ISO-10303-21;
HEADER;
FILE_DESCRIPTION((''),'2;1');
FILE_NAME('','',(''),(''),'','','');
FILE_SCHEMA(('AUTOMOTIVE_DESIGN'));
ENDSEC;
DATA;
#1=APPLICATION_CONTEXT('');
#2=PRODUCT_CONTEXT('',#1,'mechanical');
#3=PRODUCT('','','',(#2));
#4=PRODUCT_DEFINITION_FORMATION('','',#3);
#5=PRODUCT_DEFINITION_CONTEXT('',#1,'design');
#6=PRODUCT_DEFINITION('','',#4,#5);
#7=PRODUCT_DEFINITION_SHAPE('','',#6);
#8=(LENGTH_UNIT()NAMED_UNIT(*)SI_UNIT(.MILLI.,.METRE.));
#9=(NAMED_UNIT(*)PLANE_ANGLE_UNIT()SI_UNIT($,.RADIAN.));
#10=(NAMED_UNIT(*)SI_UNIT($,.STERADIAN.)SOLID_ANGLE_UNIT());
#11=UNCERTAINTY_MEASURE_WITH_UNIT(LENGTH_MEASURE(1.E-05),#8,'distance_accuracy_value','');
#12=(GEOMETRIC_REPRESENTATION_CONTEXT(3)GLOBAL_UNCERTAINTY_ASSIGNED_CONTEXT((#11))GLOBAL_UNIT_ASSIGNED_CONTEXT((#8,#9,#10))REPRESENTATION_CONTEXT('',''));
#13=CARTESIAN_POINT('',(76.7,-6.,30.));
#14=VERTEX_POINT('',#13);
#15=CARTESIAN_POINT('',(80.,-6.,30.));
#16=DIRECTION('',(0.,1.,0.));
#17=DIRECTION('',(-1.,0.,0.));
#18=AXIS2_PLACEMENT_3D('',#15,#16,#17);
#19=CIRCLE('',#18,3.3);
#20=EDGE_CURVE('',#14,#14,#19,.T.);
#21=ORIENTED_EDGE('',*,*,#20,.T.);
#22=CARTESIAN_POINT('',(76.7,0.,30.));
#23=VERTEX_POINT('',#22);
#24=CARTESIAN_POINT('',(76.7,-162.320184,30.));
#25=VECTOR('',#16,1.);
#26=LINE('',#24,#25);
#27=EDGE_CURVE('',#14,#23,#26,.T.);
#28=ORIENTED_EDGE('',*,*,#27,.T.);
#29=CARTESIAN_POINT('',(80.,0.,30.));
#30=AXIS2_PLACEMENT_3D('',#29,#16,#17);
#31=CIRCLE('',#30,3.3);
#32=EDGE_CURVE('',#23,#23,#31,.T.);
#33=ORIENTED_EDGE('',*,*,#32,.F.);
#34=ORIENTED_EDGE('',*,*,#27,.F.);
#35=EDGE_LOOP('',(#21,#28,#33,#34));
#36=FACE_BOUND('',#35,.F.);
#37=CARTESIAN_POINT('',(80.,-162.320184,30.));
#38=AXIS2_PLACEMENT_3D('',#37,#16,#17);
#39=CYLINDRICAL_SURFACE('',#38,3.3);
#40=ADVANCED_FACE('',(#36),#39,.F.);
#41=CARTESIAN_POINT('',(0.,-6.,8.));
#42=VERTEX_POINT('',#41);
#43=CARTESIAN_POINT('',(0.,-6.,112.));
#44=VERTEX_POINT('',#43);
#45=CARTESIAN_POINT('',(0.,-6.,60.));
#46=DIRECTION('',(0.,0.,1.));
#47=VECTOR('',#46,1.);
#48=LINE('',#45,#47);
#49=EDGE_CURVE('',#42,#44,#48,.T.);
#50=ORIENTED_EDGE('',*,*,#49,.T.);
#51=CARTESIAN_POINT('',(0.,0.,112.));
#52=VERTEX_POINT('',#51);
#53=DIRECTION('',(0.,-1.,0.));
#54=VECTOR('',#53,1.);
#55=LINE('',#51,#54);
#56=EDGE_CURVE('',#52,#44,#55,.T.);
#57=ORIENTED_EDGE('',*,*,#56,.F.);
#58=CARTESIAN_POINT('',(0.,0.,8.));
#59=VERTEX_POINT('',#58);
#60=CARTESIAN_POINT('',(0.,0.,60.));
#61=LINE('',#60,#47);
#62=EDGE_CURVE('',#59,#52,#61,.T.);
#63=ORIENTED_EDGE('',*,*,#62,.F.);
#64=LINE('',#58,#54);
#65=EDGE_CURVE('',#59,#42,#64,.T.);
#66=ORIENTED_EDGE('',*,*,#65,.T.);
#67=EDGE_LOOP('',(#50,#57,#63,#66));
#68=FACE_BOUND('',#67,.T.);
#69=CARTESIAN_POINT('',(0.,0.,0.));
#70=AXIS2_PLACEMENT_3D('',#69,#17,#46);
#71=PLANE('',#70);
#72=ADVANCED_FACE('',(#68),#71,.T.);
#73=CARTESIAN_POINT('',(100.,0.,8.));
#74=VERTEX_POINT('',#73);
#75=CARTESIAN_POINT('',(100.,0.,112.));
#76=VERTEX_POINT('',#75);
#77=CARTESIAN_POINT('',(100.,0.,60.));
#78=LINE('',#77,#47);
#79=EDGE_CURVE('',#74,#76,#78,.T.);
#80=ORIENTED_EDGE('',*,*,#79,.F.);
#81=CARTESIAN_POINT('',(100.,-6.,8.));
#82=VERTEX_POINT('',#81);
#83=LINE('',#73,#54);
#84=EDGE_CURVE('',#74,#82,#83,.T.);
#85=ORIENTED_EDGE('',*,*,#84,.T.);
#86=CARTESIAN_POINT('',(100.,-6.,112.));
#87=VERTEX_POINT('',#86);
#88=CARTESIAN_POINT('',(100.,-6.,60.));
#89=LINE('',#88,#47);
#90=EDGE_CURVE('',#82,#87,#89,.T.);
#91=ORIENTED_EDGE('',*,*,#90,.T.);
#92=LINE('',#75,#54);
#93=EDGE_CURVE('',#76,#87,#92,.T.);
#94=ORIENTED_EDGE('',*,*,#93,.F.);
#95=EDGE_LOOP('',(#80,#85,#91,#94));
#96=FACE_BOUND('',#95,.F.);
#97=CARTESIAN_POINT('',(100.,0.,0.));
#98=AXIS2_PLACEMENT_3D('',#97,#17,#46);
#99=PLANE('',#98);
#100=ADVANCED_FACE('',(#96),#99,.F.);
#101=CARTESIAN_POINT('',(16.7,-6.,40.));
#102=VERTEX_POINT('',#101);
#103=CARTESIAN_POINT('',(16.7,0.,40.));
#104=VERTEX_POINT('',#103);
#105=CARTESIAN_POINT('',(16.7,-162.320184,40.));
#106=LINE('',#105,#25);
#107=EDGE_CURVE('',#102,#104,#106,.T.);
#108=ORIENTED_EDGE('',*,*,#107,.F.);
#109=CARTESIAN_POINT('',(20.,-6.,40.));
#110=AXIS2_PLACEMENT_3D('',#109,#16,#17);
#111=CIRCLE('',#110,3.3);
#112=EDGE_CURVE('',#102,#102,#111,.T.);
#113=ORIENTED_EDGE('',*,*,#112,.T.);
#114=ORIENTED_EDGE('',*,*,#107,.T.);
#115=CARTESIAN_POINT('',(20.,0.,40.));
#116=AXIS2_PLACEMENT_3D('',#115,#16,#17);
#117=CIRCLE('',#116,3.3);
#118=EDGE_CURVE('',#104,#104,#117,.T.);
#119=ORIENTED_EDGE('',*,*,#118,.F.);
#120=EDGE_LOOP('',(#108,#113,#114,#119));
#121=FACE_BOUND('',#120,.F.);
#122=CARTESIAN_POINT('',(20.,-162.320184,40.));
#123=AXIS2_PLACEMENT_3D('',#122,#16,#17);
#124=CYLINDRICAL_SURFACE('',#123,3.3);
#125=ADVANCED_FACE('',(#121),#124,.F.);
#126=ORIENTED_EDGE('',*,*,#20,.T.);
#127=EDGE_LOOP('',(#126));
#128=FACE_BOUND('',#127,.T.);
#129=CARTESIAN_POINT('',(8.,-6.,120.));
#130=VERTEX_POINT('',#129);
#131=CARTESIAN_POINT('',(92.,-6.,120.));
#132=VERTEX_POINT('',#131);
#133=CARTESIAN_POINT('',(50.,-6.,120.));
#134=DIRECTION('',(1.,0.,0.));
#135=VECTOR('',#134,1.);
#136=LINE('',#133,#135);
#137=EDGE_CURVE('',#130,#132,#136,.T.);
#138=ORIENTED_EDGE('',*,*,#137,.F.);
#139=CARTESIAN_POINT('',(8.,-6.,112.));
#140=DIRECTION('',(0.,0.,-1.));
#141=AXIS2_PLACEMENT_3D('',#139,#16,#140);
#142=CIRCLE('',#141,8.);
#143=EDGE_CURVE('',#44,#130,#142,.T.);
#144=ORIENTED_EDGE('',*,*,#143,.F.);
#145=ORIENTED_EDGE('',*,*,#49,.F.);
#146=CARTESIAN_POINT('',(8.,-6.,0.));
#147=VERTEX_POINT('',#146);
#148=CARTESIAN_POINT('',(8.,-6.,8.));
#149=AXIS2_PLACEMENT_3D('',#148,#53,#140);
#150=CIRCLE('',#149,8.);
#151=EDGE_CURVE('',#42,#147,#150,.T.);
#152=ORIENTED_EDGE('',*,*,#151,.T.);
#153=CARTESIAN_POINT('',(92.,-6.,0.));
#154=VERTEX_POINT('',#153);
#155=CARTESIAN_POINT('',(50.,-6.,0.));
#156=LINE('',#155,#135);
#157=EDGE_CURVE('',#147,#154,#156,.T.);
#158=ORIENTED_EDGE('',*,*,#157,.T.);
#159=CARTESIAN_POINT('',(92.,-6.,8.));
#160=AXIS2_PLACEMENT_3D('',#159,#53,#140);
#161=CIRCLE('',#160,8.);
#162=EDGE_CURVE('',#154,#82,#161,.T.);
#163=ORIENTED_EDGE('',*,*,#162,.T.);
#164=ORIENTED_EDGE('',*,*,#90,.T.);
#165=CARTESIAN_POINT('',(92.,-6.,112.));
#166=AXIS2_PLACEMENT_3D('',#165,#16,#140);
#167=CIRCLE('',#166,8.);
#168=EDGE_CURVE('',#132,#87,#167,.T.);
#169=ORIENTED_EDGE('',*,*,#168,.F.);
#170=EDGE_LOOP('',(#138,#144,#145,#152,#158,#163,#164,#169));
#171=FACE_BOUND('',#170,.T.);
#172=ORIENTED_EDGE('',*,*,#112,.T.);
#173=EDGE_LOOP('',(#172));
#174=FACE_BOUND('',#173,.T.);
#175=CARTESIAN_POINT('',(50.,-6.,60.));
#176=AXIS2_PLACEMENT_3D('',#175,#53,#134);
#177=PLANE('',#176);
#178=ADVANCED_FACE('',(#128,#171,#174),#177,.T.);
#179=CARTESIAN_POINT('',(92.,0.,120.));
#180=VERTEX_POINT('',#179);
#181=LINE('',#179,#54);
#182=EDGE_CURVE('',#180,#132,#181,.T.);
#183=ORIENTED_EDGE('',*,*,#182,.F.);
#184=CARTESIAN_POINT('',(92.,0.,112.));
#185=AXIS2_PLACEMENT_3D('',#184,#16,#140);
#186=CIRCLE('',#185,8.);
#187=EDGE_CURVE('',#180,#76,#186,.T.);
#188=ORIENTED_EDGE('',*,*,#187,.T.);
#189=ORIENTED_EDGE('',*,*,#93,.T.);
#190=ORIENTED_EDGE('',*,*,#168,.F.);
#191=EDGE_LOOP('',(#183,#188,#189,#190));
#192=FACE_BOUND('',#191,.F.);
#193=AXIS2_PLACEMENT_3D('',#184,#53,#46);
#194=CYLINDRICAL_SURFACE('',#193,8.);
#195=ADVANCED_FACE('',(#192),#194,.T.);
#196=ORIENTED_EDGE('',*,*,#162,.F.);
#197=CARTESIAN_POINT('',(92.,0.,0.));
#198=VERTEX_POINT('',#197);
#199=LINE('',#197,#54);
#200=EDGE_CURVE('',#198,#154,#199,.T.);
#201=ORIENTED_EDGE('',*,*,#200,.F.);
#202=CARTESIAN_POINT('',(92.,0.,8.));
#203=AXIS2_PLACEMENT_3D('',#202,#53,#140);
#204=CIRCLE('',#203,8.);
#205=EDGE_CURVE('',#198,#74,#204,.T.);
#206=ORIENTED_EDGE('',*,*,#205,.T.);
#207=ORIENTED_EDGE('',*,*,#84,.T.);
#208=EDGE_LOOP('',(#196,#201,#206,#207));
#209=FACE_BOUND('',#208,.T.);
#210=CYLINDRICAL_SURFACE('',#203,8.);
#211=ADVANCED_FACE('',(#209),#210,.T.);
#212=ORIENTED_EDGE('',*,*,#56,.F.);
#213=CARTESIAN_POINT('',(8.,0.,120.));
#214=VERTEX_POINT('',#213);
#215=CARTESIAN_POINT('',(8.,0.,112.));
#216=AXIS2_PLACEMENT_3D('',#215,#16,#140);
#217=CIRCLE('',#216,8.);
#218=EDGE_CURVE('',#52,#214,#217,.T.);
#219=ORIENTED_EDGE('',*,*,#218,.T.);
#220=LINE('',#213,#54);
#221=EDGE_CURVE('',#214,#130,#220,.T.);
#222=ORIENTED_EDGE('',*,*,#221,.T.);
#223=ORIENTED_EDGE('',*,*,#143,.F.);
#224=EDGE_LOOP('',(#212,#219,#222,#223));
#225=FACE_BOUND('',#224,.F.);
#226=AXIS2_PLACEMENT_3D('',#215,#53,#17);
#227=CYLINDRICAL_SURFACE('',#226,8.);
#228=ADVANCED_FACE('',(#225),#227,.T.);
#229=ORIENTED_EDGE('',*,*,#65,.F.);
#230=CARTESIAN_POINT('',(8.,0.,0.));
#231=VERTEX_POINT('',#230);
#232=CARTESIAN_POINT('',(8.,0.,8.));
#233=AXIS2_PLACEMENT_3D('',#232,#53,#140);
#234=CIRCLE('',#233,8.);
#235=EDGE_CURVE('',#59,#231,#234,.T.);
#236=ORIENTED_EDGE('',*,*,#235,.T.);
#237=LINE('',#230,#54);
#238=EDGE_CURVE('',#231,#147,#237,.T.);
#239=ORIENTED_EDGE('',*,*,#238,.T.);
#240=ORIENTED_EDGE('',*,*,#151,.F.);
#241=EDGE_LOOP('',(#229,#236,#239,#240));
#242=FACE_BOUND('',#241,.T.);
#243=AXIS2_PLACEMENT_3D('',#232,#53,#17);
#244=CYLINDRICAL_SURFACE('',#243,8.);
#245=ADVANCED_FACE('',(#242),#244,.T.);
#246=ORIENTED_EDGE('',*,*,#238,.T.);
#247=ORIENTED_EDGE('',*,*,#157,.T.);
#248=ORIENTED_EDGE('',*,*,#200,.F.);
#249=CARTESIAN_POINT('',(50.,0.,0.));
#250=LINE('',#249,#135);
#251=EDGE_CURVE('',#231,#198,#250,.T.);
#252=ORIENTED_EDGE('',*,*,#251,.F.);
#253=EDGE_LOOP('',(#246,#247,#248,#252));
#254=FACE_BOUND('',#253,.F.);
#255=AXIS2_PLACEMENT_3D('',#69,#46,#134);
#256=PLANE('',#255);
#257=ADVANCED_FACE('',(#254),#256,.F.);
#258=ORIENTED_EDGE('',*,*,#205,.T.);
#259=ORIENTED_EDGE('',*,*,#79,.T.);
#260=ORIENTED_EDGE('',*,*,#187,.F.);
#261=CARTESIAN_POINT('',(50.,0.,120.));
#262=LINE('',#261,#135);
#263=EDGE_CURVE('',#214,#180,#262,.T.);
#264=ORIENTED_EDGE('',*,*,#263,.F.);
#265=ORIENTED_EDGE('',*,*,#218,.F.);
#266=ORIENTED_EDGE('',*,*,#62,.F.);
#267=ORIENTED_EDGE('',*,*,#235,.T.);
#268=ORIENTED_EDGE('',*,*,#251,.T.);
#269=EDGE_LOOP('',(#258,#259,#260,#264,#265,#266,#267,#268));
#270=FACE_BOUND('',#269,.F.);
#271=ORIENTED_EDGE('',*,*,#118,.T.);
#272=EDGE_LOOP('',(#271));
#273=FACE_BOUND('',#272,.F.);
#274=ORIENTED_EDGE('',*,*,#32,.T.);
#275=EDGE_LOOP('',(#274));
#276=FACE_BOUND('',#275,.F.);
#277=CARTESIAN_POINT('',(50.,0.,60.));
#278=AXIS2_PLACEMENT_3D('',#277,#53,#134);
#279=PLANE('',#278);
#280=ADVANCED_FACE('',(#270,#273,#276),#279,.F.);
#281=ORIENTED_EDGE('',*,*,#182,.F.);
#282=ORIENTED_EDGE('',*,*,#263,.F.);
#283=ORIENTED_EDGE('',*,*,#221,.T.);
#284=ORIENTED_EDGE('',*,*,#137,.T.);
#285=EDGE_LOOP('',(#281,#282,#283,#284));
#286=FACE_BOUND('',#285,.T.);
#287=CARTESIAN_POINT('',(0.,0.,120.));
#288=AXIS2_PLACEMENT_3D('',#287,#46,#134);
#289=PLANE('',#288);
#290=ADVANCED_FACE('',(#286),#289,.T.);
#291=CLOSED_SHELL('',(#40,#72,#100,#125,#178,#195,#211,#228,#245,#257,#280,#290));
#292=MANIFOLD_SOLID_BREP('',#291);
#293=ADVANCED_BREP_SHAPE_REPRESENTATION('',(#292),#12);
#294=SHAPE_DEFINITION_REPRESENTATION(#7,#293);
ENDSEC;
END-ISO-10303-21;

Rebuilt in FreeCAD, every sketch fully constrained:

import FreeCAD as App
import Part
import Sketcher

V = App.Vector


def edges_at(feature, points):
    """Names of the edges that pass closest to the given points."""
    edges = feature.Shape.Edges
    near = lambda p: min(range(len(edges)), key=lambda i: edges[i].distToShape(Part.Vertex(*p))[0])
    return sorted({f"Edge{near(p) + 1}" for p in points})

doc = App.newDocument("Part")
body = doc.addObject("PartDesign::Body", "Body")

sketch1 = body.newObject("Sketcher::SketchObject", "Sketch")
sketch1.AttachmentSupport = (doc.getObject("XZ_Plane"), [""])
sketch1.MapMode = "FlatFace"
sketch1.addGeometry(Part.LineSegment(V(0, 120, 0), V(0, 0, 0)), False)
sketch1.addGeometry(Part.LineSegment(V(0, 0, 0), V(100, 0, 0)), False)
sketch1.addGeometry(Part.LineSegment(V(100, 0, 0), V(100, 120, 0)), False)
sketch1.addGeometry(Part.LineSegment(V(100, 120, 0), V(0, 120, 0)), False)
sketch1.addConstraint(Sketcher.Constraint("Coincident", 0, 2, 1, 1))
sketch1.addConstraint(Sketcher.Constraint("Coincident", 1, 2, 2, 1))
sketch1.addConstraint(Sketcher.Constraint("Coincident", 2, 2, 3, 1))
sketch1.addConstraint(Sketcher.Constraint("Coincident", 3, 2, 0, 1))
sketch1.addConstraint(Sketcher.Constraint("Vertical", 0))
sketch1.addConstraint(Sketcher.Constraint("Horizontal", 1))
sketch1.addConstraint(Sketcher.Constraint("Vertical", 2))
sketch1.addConstraint(Sketcher.Constraint("Horizontal", 3))
sketch1.addConstraint(Sketcher.Constraint("Coincident", 0, 2, -1, 1))
sketch1.addConstraint(Sketcher.Constraint("DistanceX", 1, 1, 1, 2, 100.0))
sketch1.addConstraint(Sketcher.Constraint("DistanceY", 0, 2, 0, 1, 120.0))
pad1 = body.newObject("PartDesign::Pad", "Pad")
pad1.Profile = sketch1
pad1.Length = 6

sketch2 = body.newObject("Sketcher::SketchObject", "Sketch001")
sketch2.AttachmentSupport = (doc.getObject("XZ_Plane"), [""])
sketch2.MapMode = "FlatFace"
sketch2.AttachmentOffset = App.Placement(V(0, 0, 6), App.Rotation())
sketch2.addGeometry(Part.Circle(V(80, 30, 0), V(0, 0, 1), 3.3), False)
sketch2.addGeometry(Part.Circle(V(20, 40, 0), V(0, 0, 1), 3.3), False)
sketch2.addConstraint(Sketcher.Constraint("Equal", 0, 1))
sketch2.addConstraint(Sketcher.Constraint("Diameter", 0, 6.6))
sketch2.addConstraint(Sketcher.Constraint("DistanceX", -1, 1, 0, 3, 80.0))
sketch2.addConstraint(Sketcher.Constraint("DistanceY", -1, 1, 0, 3, 30.0))
sketch2.addConstraint(Sketcher.Constraint("DistanceX", -1, 1, 1, 3, 20.0))
sketch2.addConstraint(Sketcher.Constraint("DistanceY", -1, 1, 1, 3, 40.0))
doc.recompute()
hole = body.newObject("PartDesign::Hole", "Hole")
hole.Profile = sketch2
hole.ThreadType = "None"
hole.Diameter = 6.6
hole.DepthType = "ThroughAll"
doc.recompute()

fillet = body.newObject("PartDesign::Fillet", "Fillet")
fillet.Base = (hole, edges_at(hole, [
    (100, -3, 120),
    (100, -3, 0),
    (0, -3, 0),
    (0, -3, 120),
]))
fillet.Radius = 8

doc.recompute()
